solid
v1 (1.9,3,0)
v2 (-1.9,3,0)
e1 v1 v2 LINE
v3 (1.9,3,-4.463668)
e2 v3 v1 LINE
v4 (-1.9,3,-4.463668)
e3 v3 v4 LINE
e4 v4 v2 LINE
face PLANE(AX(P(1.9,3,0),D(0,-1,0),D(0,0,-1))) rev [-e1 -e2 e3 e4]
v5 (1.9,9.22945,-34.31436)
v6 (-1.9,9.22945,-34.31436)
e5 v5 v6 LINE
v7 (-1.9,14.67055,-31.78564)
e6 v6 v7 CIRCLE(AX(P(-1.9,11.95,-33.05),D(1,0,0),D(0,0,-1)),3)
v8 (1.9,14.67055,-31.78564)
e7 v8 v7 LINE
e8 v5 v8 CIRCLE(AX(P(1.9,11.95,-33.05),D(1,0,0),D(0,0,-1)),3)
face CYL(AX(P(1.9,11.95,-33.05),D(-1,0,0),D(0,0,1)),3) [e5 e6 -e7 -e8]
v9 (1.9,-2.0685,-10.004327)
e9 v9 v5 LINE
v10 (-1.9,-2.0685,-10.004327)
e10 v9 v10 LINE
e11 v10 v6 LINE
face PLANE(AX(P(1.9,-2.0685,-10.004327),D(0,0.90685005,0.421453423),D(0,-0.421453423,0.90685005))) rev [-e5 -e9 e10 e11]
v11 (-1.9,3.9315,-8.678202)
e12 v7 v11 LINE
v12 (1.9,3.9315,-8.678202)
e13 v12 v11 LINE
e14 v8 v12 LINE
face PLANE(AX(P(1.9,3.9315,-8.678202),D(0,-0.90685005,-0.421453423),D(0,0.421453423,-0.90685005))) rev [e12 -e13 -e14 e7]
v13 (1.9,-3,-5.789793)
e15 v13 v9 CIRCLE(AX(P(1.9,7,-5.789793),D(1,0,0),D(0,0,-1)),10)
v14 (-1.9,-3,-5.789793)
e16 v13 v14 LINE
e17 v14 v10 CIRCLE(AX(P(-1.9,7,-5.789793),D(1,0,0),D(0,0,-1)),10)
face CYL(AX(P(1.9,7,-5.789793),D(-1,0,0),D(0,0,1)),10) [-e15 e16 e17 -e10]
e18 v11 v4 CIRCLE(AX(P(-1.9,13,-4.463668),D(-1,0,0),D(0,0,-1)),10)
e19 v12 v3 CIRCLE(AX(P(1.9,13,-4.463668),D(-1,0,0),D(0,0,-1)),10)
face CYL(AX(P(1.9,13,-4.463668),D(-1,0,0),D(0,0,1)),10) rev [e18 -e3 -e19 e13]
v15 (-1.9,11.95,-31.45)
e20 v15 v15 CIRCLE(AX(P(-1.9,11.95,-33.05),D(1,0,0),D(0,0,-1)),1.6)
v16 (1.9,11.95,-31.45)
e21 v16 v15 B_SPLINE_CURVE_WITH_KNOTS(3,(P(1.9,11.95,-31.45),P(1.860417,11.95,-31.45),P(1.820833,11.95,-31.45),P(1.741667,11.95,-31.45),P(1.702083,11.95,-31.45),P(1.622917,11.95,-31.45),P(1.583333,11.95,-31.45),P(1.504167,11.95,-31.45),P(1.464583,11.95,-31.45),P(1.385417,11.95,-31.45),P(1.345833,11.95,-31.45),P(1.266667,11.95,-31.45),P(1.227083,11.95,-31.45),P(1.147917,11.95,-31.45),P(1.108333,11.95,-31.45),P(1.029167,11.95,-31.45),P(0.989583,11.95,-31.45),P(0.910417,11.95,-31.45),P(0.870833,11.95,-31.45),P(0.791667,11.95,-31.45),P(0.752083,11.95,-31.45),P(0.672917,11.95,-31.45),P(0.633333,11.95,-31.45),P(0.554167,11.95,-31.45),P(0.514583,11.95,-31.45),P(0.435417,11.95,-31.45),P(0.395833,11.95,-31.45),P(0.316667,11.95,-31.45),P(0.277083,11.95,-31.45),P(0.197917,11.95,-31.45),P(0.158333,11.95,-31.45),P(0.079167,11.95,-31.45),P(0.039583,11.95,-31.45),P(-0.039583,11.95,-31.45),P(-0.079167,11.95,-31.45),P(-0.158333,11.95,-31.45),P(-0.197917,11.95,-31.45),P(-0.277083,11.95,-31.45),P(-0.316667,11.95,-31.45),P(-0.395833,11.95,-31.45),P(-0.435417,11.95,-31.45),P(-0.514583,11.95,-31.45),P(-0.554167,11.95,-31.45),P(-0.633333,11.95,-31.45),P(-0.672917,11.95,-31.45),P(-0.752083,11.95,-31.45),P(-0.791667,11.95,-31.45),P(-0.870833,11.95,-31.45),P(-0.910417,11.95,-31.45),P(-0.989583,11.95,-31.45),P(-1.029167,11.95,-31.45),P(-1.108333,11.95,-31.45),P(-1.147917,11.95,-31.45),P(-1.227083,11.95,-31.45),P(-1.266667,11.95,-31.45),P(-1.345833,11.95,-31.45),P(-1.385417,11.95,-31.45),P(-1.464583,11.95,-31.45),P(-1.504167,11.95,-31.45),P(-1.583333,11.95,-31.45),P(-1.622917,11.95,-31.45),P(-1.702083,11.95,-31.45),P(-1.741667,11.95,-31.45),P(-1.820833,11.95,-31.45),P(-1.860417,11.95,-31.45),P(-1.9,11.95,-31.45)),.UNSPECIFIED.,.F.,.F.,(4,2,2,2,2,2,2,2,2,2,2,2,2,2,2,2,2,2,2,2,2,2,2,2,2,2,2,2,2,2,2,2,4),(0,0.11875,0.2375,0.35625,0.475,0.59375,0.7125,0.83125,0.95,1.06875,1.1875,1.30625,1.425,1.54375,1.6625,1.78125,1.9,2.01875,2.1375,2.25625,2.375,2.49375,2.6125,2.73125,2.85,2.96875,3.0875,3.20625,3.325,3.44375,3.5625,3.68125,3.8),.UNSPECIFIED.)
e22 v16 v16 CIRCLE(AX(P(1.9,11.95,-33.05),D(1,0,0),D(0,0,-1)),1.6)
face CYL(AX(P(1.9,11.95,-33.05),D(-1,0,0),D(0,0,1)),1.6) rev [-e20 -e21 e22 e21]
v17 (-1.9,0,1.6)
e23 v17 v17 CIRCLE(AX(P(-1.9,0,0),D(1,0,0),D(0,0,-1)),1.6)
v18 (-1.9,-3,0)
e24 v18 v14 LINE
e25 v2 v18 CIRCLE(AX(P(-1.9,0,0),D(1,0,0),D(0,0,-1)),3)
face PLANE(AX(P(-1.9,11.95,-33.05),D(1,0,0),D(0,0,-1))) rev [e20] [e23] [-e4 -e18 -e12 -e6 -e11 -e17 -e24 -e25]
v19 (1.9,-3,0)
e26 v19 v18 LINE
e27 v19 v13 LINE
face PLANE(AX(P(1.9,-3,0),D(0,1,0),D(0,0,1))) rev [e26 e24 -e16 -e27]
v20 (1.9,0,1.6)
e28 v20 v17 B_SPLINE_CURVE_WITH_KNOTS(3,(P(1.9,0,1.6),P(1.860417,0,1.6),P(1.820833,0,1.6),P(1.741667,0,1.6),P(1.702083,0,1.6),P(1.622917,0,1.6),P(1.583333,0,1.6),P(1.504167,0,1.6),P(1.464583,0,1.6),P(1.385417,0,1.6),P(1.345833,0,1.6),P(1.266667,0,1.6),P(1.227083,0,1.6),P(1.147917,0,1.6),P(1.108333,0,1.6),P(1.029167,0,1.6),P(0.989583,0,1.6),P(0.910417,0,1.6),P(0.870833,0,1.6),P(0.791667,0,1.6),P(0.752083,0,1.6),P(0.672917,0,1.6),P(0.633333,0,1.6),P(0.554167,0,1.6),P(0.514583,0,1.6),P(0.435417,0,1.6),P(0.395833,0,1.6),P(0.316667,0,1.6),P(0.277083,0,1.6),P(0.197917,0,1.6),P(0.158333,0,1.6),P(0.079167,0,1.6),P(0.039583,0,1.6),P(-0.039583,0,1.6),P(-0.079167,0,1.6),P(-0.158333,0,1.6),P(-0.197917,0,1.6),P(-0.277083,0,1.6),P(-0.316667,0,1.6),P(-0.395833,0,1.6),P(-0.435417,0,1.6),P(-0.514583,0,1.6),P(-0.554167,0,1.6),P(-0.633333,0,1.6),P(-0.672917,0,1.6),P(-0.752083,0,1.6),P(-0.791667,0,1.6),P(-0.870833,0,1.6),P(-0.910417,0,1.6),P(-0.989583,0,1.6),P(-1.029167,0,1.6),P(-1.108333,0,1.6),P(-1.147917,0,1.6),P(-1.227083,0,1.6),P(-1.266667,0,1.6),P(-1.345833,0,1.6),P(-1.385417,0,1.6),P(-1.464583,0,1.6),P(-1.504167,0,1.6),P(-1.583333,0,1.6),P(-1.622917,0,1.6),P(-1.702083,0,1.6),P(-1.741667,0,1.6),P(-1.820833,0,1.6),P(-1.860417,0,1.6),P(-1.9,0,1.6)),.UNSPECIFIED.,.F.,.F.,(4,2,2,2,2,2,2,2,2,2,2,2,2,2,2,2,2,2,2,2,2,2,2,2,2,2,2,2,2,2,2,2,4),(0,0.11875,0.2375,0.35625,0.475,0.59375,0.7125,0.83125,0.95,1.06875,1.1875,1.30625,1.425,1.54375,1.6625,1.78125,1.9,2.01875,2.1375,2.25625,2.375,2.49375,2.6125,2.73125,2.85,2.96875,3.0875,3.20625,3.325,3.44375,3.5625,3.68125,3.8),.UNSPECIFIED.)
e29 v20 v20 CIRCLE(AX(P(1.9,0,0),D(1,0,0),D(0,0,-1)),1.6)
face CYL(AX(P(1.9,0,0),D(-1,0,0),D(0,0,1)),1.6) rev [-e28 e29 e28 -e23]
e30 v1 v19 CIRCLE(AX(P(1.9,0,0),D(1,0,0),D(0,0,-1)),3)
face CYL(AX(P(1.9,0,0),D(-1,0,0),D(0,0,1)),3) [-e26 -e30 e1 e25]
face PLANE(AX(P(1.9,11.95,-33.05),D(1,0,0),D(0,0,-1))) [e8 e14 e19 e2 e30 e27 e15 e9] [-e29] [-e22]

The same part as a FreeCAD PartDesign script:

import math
import FreeCAD as App
import Part
import Sketcher

doc = App.newDocument("Part")
body = doc.addObject("PartDesign::Body", "Body")

sketch1 = body.newObject("Sketcher::SketchObject", "Sketch")
sketch1.AttachmentSupport = (doc.getObject("YZ_Plane"), [""])
sketch1.MapMode = "FlatFace"
sketch1.addGeometry([
    Part.LineSegment(App.Vector(-3, 0, 0), App.Vector(-3, -5.789793, 0)),
    Part.ArcOfCircle(Part.Circle(App.Vector(7, -5.789793, 0), App.Vector(0, 0, 1), 10), math.radians(-180), math.radians(-155.073618)),
    Part.LineSegment(App.Vector(-2.0685, -10.004327, 0), App.Vector(9.22945, -34.31436, 0)),
    Part.ArcOfCircle(Part.Circle(App.Vector(11.95, -33.05, 0), App.Vector(0, 0, 1), 3), math.radians(-155.073618), math.radians(24.926382)),
    Part.LineSegment(App.Vector(14.67055, -31.78564, 0), App.Vector(3.9315, -8.678202, 0)),
    Part.ArcOfCircle(Part.Circle(App.Vector(13, -4.463668, 0), App.Vector(0, 0, 1), 10), math.radians(-180), math.radians(-155.073618)),
    Part.LineSegment(App.Vector(3, -4.463668, 0), App.Vector(3, 0, 0)),
    Part.ArcOfCircle(Part.Circle(App.Vector(0, 0, 0), App.Vector(0, 0, 1), 3), math.radians(0), math.radians(180)),
    Part.Circle(App.Vector(0, 0, 0), App.Vector(0, 0, 1), 1.6),
    Part.Circle(App.Vector(11.95, -33.05, 0), App.Vector(0, 0, 1), 1.6),
], False)
sketch1.addConstraint([
    Sketcher.Constraint("Tangent", 0, 2, 1, 1),
    Sketcher.Constraint("Tangent", 1, 2, 2, 1),
    Sketcher.Constraint("Tangent", 2, 2, 3, 1),
    Sketcher.Constraint("Tangent", 3, 2, 4, 1),
    Sketcher.Constraint("Tangent", 4, 2, 5, 2),
    Sketcher.Constraint("Tangent", 5, 1, 6, 1),
    Sketcher.Constraint("Tangent", 6, 2, 7, 1),
    Sketcher.Constraint("Tangent", 7, 2, 0, 1),
    Sketcher.Constraint("Vertical", 0),
    Sketcher.Constraint("Vertical", 6),
    Sketcher.Constraint("Coincident", 7, 3, -1, 1),
    Sketcher.Constraint("Coincident", 8, 3, -1, 1),
    Sketcher.Constraint("Coincident", 9, 3, 3, 3),
    Sketcher.Constraint("Equal", 1, 5),
    Sketcher.Constraint("Equal", 3, 7),
    Sketcher.Constraint("Equal", 8, 9),
    Sketcher.Constraint("Parallel", 2, 4),
    Sketcher.Constraint("Radius", 1, 10.0),
    Sketcher.Constraint("Radius", 3, 3.0),
    Sketcher.Constraint("Diameter", 8, 3.2),
    Sketcher.Constraint("DistanceX", -1, 1, 3, 3, 11.95),
    Sketcher.Constraint("DistanceY", 3, 3, -1, 1, 33.05),
    Sketcher.Constraint("DistanceY", 6, 1, 6, 2, 4.463668),
])
pad1 = body.newObject("PartDesign::Pad", "Pad")
pad1.Profile = sketch1
pad1.Length = 3.8
pad1.Midplane = True

doc.recompute()
